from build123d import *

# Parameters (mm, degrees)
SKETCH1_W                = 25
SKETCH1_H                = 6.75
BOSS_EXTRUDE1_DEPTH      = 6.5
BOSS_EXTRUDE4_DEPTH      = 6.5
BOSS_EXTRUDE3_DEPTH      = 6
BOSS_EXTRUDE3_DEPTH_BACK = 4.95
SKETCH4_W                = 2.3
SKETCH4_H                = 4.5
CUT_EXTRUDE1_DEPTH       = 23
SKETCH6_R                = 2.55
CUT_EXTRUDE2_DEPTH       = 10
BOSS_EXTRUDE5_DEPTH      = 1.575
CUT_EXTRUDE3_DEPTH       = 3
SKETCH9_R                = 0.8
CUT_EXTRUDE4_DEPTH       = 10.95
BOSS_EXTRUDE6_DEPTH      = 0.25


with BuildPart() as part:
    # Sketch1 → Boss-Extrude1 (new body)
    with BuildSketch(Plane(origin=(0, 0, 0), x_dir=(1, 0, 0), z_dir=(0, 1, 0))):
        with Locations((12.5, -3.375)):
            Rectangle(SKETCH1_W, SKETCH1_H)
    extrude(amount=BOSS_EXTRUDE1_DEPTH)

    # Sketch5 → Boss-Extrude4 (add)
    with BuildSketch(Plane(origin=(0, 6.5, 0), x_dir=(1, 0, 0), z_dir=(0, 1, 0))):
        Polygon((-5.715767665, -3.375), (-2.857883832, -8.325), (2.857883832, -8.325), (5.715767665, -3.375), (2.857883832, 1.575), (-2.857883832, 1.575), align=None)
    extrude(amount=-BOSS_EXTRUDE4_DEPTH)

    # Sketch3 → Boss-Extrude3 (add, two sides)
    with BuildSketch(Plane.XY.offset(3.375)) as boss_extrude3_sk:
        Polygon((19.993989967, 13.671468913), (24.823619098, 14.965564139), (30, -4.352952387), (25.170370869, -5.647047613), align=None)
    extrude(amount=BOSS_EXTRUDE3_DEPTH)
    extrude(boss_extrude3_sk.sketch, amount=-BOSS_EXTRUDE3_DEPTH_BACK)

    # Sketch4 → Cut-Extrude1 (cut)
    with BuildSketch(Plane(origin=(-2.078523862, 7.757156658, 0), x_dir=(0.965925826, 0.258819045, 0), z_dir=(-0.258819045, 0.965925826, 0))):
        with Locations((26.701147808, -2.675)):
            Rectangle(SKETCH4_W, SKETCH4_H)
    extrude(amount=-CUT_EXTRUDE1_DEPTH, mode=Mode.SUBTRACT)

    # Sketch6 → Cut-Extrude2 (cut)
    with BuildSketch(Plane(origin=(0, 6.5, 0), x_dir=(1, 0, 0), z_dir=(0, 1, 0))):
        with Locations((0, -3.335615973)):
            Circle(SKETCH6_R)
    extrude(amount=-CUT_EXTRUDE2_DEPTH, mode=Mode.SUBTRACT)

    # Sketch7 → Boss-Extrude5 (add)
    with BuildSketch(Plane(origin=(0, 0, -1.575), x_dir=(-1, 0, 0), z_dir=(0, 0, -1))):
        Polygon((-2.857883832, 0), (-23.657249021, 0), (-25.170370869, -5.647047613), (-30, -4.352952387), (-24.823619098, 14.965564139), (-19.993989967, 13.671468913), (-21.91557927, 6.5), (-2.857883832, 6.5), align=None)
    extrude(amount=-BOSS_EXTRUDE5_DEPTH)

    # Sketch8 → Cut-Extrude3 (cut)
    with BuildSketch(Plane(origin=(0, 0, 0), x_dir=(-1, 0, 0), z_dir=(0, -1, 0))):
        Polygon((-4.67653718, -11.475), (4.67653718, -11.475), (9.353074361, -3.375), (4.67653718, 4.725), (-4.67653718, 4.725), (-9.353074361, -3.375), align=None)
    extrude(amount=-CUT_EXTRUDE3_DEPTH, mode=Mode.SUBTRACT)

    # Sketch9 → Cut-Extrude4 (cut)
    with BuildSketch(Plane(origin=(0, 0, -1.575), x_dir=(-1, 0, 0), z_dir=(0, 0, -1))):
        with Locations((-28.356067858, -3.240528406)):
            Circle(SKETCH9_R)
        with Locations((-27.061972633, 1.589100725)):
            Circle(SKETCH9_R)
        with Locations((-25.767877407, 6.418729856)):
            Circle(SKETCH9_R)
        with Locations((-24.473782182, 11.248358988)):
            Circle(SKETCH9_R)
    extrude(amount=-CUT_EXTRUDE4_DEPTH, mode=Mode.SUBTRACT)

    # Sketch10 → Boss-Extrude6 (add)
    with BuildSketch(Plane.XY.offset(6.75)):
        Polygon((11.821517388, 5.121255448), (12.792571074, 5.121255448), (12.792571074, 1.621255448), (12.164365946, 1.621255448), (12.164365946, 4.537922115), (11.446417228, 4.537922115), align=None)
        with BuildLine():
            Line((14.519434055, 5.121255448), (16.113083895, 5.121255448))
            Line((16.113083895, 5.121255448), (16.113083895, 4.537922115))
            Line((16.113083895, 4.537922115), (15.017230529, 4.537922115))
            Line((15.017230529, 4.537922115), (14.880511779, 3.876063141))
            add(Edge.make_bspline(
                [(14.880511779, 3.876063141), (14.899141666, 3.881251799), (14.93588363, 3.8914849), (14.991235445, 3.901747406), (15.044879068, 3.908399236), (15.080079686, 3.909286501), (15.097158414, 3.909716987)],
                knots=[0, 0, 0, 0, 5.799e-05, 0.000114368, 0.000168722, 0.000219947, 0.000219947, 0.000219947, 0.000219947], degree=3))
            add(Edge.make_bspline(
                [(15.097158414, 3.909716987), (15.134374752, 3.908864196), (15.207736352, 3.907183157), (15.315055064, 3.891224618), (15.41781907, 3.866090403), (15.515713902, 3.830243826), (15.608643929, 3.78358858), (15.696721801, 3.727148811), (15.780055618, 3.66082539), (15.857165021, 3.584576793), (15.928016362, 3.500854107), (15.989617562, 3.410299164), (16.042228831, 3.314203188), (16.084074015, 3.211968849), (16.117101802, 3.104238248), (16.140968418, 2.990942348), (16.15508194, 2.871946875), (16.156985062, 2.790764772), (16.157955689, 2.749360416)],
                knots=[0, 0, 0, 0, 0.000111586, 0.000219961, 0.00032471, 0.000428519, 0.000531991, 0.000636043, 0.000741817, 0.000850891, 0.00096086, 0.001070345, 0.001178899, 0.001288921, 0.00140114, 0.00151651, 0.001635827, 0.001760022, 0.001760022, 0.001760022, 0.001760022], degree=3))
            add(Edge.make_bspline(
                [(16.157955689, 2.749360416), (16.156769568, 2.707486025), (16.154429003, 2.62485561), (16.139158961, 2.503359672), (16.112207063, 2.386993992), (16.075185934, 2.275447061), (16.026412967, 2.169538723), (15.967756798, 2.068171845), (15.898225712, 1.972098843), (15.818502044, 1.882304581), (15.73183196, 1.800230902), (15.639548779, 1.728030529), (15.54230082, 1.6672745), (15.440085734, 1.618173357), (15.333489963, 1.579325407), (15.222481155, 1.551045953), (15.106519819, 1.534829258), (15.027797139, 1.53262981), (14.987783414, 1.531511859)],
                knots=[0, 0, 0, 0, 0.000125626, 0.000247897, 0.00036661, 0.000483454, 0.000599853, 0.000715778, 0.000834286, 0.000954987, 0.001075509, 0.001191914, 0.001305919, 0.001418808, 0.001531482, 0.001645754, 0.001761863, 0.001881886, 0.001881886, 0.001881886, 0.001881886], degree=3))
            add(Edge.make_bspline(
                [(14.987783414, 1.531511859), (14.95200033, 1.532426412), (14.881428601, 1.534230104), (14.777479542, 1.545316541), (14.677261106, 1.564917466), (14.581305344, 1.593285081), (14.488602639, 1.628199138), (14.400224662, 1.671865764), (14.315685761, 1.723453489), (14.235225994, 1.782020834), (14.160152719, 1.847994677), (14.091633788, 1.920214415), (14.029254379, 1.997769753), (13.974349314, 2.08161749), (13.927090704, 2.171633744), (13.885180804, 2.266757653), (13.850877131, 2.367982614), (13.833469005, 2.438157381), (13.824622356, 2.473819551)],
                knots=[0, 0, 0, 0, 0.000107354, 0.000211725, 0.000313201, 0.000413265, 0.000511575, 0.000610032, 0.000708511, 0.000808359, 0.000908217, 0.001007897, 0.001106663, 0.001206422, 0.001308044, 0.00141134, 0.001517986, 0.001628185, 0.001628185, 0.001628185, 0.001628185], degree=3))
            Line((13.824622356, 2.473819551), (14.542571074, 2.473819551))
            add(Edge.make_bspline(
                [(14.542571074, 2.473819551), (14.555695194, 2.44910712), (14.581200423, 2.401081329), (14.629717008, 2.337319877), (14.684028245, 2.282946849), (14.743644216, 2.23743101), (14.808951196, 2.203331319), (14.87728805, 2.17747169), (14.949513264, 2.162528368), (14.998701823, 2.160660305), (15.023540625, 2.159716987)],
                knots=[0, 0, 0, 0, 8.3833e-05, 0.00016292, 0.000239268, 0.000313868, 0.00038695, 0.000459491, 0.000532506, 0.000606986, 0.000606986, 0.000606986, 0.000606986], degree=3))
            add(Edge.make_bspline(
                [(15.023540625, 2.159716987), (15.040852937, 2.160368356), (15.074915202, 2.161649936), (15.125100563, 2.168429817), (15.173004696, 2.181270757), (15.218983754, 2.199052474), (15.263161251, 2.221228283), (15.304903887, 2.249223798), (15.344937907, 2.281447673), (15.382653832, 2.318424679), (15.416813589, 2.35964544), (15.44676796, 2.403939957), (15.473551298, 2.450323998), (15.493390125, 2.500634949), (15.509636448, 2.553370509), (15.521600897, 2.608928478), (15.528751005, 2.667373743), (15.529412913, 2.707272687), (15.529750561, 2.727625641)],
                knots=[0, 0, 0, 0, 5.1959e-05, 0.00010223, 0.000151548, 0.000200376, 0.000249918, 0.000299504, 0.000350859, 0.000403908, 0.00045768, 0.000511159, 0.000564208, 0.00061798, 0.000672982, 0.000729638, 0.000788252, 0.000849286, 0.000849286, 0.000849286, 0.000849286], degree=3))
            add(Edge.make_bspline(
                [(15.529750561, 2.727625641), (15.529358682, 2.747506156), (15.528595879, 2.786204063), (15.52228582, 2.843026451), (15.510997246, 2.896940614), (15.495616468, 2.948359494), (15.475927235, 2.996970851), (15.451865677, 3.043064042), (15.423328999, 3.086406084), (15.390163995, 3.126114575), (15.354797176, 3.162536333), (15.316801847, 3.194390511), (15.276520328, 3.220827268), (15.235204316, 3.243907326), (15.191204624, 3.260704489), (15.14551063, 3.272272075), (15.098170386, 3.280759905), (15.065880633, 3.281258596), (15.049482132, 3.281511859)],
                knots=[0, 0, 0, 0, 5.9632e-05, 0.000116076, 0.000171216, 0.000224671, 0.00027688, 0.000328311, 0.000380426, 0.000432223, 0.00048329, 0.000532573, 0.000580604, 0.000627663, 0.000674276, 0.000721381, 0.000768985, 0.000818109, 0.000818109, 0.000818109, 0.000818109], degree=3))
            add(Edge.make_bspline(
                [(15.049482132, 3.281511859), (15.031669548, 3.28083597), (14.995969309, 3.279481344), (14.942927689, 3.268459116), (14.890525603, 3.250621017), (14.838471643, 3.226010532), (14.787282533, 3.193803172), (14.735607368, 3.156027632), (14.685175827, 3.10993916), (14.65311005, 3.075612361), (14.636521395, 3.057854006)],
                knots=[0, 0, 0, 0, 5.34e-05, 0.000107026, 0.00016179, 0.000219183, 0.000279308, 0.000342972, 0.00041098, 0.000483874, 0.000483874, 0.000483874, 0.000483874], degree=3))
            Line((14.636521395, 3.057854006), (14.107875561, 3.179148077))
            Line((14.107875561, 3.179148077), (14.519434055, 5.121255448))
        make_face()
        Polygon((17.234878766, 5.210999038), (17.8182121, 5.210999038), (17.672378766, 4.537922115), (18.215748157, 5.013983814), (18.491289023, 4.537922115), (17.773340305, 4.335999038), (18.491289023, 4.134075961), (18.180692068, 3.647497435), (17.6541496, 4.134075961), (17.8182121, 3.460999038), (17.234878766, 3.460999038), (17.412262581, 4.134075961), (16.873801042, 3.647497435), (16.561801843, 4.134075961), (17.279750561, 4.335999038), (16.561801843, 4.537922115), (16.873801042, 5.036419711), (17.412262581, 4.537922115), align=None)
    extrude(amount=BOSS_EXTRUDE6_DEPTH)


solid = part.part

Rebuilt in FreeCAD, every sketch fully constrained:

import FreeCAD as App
import Part
import Sketcher

V = App.Vector
Q = App.Units.Quantity

doc = App.newDocument("Part")
params = doc.addObject("Spreadsheet::Sheet", "Params")
for row, (alias, value) in enumerate([
    ("sketch1_width", "25 mm"),
    ("sketch1_height", "6.75 mm"),
    ("pad1_length", "6.5 mm"),
    ("pad2_length", "6.5 mm"),
    ("sketch3_length", "5 mm"),
    ("sketch3_length2", "20 mm"),
    ("pad3_length", "6 mm"),
    ("pad3_length2", "4.95 mm"),
    ("sketch4_width", "2.3 mm"),
    ("sketch4_height", "4.5 mm"),
    ("pocket1_length", "23 mm"),
    ("sketch5_diameter", "5.1 mm"),
    ("pocket2_length", "10 mm"),
    ("sketch6_length", "5 mm"),
    ("sketch6_length2", "20 mm"),
    ("sketch6_height", "6.5 mm"),
    ("pad4_length", "1.575 mm"),
    ("pocket3_length", "3 mm"),
    ("sketch8_diameter", "1.6 mm"),
    ("pocket4_length", "10.95 mm"),
    ("sketch9_height", "3.5 mm"),
    ("pad5_length", "0.25 mm"),
], start=1):
    params.set(f"A{row}", alias)
    params.set(f"B{row}", "=" + value)
    params.setAlias(f"B{row}", alias)

body = doc.addObject("PartDesign::Body", "Body")

# Sketch on XZ plane
sketch1 = body.newObject("Sketcher::SketchObject", "Sketch")
sketch1.AttachmentSupport = (doc.getObject("XZ_Plane"), [""])
sketch1.MapMode = "FlatFace"
sketch1.addGeometry(Part.LineSegment(V(0, 0, 0), V(0, 7, 0)), False)
sketch1.addGeometry(Part.LineSegment(V(0, 7, 0), V(25, 7, 0)), False)
sketch1.addGeometry(Part.LineSegment(V(25, 7, 0), V(25, 0, 0)), False)
sketch1.addGeometry(Part.LineSegment(V(25, 0, 0), V(0, 0, 0)), False)
sketch1.addConstraint(Sketcher.Constraint("Coincident", 0, 2, 1, 1))
sketch1.addConstraint(Sketcher.Constraint("Coincident", 1, 2, 2, 1))
sketch1.addConstraint(Sketcher.Constraint("Coincident", 2, 2, 3, 1))
sketch1.addConstraint(Sketcher.Constraint("Coincident", 3, 2, 0, 1))
sketch1.addConstraint(Sketcher.Constraint("Vertical", 0))
sketch1.addConstraint(Sketcher.Constraint("Horizontal", 1))
sketch1.addConstraint(Sketcher.Constraint("Vertical", 2))
sketch1.addConstraint(Sketcher.Constraint("Horizontal", 3))
sketch1.addConstraint(Sketcher.Constraint("Coincident", 3, 2, -1, 1))
sketch1.addConstraint(Sketcher.Constraint("DistanceX", 1, 1, 1, 2, 25.0))
sketch1.addConstraint(Sketcher.Constraint("DistanceY", 0, 1, 0, 2, 6.75))
sketch1.setExpression("Constraints[9]", "Params.sketch1_width")
sketch1.setExpression("Constraints[10]", "Params.sketch1_height")
pad1 = body.newObject("PartDesign::Pad", "Pad")
pad1.Profile = sketch1
pad1.setExpression("Length", "Params.pad1_length")
pad1.Reversed = True

# Sketch on XZ plane
sketch2 = body.newObject("Sketcher::SketchObject", "Sketch001")
sketch2.AttachmentSupport = (doc.getObject("XZ_Plane"), [""])
sketch2.MapMode = "FlatFace"
sketch2.AttachmentOffset = App.Placement(V(0, 0, -6.5), App.Rotation())
sketch2.addGeometry(Part.LineSegment(V(-6, 3, 0), V(-3, 8, 0)), False)
sketch2.addGeometry(Part.LineSegment(V(-3, 8, 0), V(3, 8, 0)), False)
sketch2.addGeometry(Part.LineSegment(V(3, 8, 0), V(6, 3, 0)), False)
sketch2.addGeometry(Part.LineSegment(V(6, 3, 0), V(3, -2, 0)), False)
sketch2.addGeometry(Part.LineSegment(V(3, -2, 0), V(-3, -2, 0)), False)
sketch2.addGeometry(Part.LineSegment(V(-3, -2, 0), V(-6, 3, 0)), False)
sketch2.addConstraint(Sketcher.Constraint("Coincident", 0, 2, 1, 1))
sketch2.addConstraint(Sketcher.Constraint("Coincident", 1, 2, 2, 1))
sketch2.addConstraint(Sketcher.Constraint("Coincident", 2, 2, 3, 1))
sketch2.addConstraint(Sketcher.Constraint("Coincident", 3, 2, 4, 1))
sketch2.addConstraint(Sketcher.Constraint("Coincident", 4, 2, 5, 1))
sketch2.addConstraint(Sketcher.Constraint("Coincident", 5, 2, 0, 1))
sketch2.addConstraint(Sketcher.Constraint("Horizontal", 1))
sketch2.addConstraint(Sketcher.Constraint("Horizontal", 4))
sketch2.addConstraint(Sketcher.Constraint("Symmetric", 2, 2, 5, 2, -2))
sketch2.addConstraint(Sketcher.Constraint("Parallel", 0, 3))
sketch2.addConstraint(Sketcher.Constraint("Parallel", 2, 5))
sketch2.addConstraint(Sketcher.Constraint("Vertical", 1, 2, 3, 2))
sketch2.addConstraint(Sketcher.Constraint("Vertical", 0, 2, 4, 2))
sketch2.addConstraint(Sketcher.Constraint("Angle", 0, Q("60 deg")))
sketch2.addConstraint(Sketcher.Constraint("DistanceY", 3, 2, 1, 2, 9.9))
sketch2.addConstraint(Sketcher.Constraint("DistanceY", -1, 1, 0, 2, 8.325))
sketch2.addConstraint(Sketcher.Constraint("DistanceX", 1, 1, 1, 2, 5.715768))
pad2 = body.newObject("PartDesign::Pad", "Pad001")
pad2.Profile = sketch2
pad2.setExpression("Length", "Params.pad2_length")

# Sketch on XY plane
sketch3 = body.newObject("Sketcher::SketchObject", "Sketch002")
sketch3.AttachmentSupport = (doc.getObject("XY_Plane"), [""])
sketch3.MapMode = "FlatFace"
sketch3.AttachmentOffset = App.Placement(V(0, 0, 3.375), App.Rotation())
sketch3.addGeometry(Part.LineSegment(V(24.8, 15, 0), V(20, 13.7, 0)), False)
sketch3.addGeometry(Part.LineSegment(V(20, 13.7, 0), V(25.2, -5.6, 0)), False)
sketch3.addGeometry(Part.LineSegment(V(25.2, -5.6, 0), V(30, -4.4, 0)), False)
sketch3.addGeometry(Part.LineSegment(V(30, -4.4, 0), V(24.8, 15, 0)), False)
sketch3.addConstraint(Sketcher.Constraint("Coincident", 0, 2, 1, 1))
sketch3.addConstraint(Sketcher.Constraint("Coincident", 1, 2, 2, 1))
sketch3.addConstraint(Sketcher.Constraint("Coincident", 2, 2, 3, 1))
sketch3.addConstraint(Sketcher.Constraint("Coincident", 3, 2, 0, 1))
sketch3.addConstraint(Sketcher.Constraint("Perpendicular", 0, 1))
sketch3.addConstraint(Sketcher.Constraint("Perpendicular", 1, 2))
sketch3.addConstraint(Sketcher.Constraint("Perpendicular", 2, 3))
sketch3.addConstraint(Sketcher.Constraint("Angle", 0, Q("-165 deg")))
sketch3.addConstraint(Sketcher.Constraint("Distance", 0, 5.0))
sketch3.addConstraint(Sketcher.Constraint("Distance", 1, 20.0))
sketch3.addConstraint(Sketcher.Constraint("DistanceX", -1, 1, 2, 2, 30.0))
sketch3.addConstraint(Sketcher.Constraint("DistanceY", -1, 1, 0, 2, 13.671469))
sketch3.setExpression("Constraints[8]", "Params.sketch3_length")
sketch3.setExpression("Constraints[9]", "Params.sketch3_length2")
pad3 = body.newObject("PartDesign::Pad", "Pad002")
pad3.Profile = sketch3
pad3.Type = "TwoLengths"
pad3.setExpression("Length", "Params.pad3_length")
pad3.setExpression("Length2", "Params.pad3_length2")

# Sketch on an angled plane
sketch4 = body.newObject("Sketcher::SketchObject", "Sketch003")
sketch4.Placement = App.Placement(V(-2.078524, 7.757157, 0), App.Rotation(V(0.965925826, 0.258819045, 0), V(0, 0, -0.999999999), V(-0.258819045, 0.965925826, 0), "ZXY"))
sketch4.addGeometry(Part.LineSegment(V(25.6, -0.4, 0), V(25.6, -4.9, 0)), False)
sketch4.addGeometry(Part.LineSegment(V(25.6, -4.9, 0), V(27.9, -4.9, 0)), False)
sketch4.addGeometry(Part.LineSegment(V(27.9, -4.9, 0), V(27.9, -0.4, 0)), False)
sketch4.addGeometry(Part.LineSegment(V(27.9, -0.4, 0), V(25.6, -0.4, 0)), False)
sketch4.addConstraint(Sketcher.Constraint("Coincident", 0, 2, 1, 1))
sketch4.addConstraint(Sketcher.Constraint("Coincident", 1, 2, 2, 1))
sketch4.addConstraint(Sketcher.Constraint("Coincident", 2, 2, 3, 1))
sketch4.addConstraint(Sketcher.Constraint("Coincident", 3, 2, 0, 1))
sketch4.addConstraint(Sketcher.Constraint("Vertical", 0))
sketch4.addConstraint(Sketcher.Constraint("Horizontal", 1))
sketch4.addConstraint(Sketcher.Constraint("Vertical", 2))
sketch4.addConstraint(Sketcher.Constraint("Horizontal", 3))
sketch4.addConstraint(Sketcher.Constraint("DistanceX", 1, 1, 1, 2, 2.3))
sketch4.addConstraint(Sketcher.Constraint("DistanceY", 0, 2, 0, 1, 4.5))
sketch4.addConstraint(Sketcher.Constraint("DistanceY", 0, 2, -1, 1, 4.925))
sketch4.addConstraint(Sketcher.Constraint("DistanceX", -1, 1, 0, 2, 25.551148))
sketch4.setExpression("Constraints[8]", "Params.sketch4_width")
sketch4.setExpression("Constraints[9]", "Params.sketch4_height")
pocket1 = body.newObject("PartDesign::Pocket", "Pocket")
pocket1.Profile = sketch4
pocket1.setExpression("Length", "Params.pocket1_length")

# Sketch on XZ plane
sketch5 = body.newObject("Sketcher::SketchObject", "Sketch004")
sketch5.AttachmentSupport = (doc.getObject("XZ_Plane"), [""])
sketch5.MapMode = "FlatFace"
sketch5.AttachmentOffset = App.Placement(V(0, 0, -6.5), App.Rotation())
sketch5.addGeometry(Part.Circle(V(0, 3.3, 0), V(0, 0, 1), 2.5), False)
sketch5.addConstraint(Sketcher.Constraint("PointOnObject", 0, 3, -2))
sketch5.addConstraint(Sketcher.Constraint("Diameter", 0, 5.1))
sketch5.addConstraint(Sketcher.Constraint("DistanceY", -1, 1, 0, 3, 3.335616))
sketch5.setExpression("Constraints[1]", "Params.sketch5_diameter")
pocket2 = body.newObject("PartDesign::Pocket", "Pocket001")
pocket2.Profile = sketch5
pocket2.setExpression("Length", "Params.pocket2_length")
pocket2.Reversed = True

# Sketch on XY plane
sketch6 = body.newObject("Sketcher::SketchObject", "Sketch005")
sketch6.AttachmentSupport = (doc.getObject("XY_Plane"), [""])
sketch6.MapMode = "FlatFace"
sketch6.AttachmentOffset = App.Placement(V(0, 0, -1.575), App.Rotation())
sketch6.addGeometry(Part.LineSegment(V(23.7, 0, 0), V(2.9, 0, 0)), False)
sketch6.addGeometry(Part.LineSegment(V(2.9, 0, 0), V(2.9, 6.5, 0)), False)
sketch6.addGeometry(Part.LineSegment(V(2.9, 6.5, 0), V(21.9, 6.5, 0)), False)
sketch6.addGeometry(Part.LineSegment(V(21.9, 6.5, 0), V(20, 13.7, 0)), False)
sketch6.addGeometry(Part.LineSegment(V(20, 13.7, 0), V(24.8, 15, 0)), False)
sketch6.addGeometry(Part.LineSegment(V(24.8, 15, 0), V(30, -4.4, 0)), False)
sketch6.addGeometry(Part.LineSegment(V(30, -4.4, 0), V(25.2, -5.6, 0)), False)
sketch6.addGeometry(Part.LineSegment(V(25.2, -5.6, 0), V(23.7, 0, 0)), False)
sketch6.addConstraint(Sketcher.Constraint("Coincident", 0, 2, 1, 1))
sketch6.addConstraint(Sketcher.Constraint("Coincident", 1, 2, 2, 1))
sketch6.addConstraint(Sketcher.Constraint("Coincident", 2, 2, 3, 1))
sketch6.addConstraint(Sketcher.Constraint("Coincident", 3, 2, 4, 1))
sketch6.addConstraint(Sketcher.Constraint("Coincident", 4, 2, 5, 1))
sketch6.addConstraint(Sketcher.Constraint("Coincident", 5, 2, 6, 1))
sketch6.addConstraint(Sketcher.Constraint("Coincident", 6, 2, 7, 1))
sketch6.addConstraint(Sketcher.Constraint("Coincident", 7, 2, 0, 1))
sketch6.addConstraint(Sketcher.Constraint("Horizontal", 0))
sketch6.addConstraint(Sketcher.Constraint("Vertical", 1))
sketch6.addConstraint(Sketcher.Constraint("Horizontal", 2))
sketch6.addConstraint(Sketcher.Constraint("PointOnObject", 0, 2, -1))
sketch6.addConstraint(Sketcher.Constraint("Perpendicular", 3, 4))
sketch6.addConstraint(Sketcher.Constraint("Perpendicular", 4, 5))
sketch6.addConstraint(Sketcher.Constraint("Perpendicular", 5, 6))
sketch6.addConstraint(Sketcher.Constraint("Perpendicular", 6, 7))
sketch6.addConstraint(Sketcher.Constraint("Equal", 4, 6))
sketch6.addConstraint(Sketcher.Constraint("Angle", 3, Q("105 deg")))
sketch6.addConstraint(Sketcher.Constraint("Distance", 4, 5.0))
sketch6.addConstraint(Sketcher.Constraint("Distance", 5, 20.0))
sketch6.addConstraint(Sketcher.Constraint("DistanceY", 1, 1, 1, 2, 6.5))
sketch6.addConstraint(Sketcher.Constraint("DistanceX", -1, 1, 5, 2, 30.0))
sketch6.addConstraint(Sketcher.Constraint("Distance", 3, 7.424451))
sketch6.addConstraint(Sketcher.Constraint("DistanceX", 0, 2, 0, 1, 20.799365))
sketch6.setExpression("Constraints[18]", "Params.sketch6_length")
sketch6.setExpression("Constraints[19]", "Params.sketch6_length2")
sketch6.setExpression("Constraints[20]", "Params.sketch6_height")
pad4 = body.newObject("PartDesign::Pad", "Pad003")
pad4.Profile = sketch6
pad4.setExpression("Length", "Params.pad4_length")

# Sketch on XZ plane
sketch7 = body.newObject("Sketcher::SketchObject", "Sketch006")
sketch7.AttachmentSupport = (doc.getObject("XZ_Plane"), [""])
sketch7.MapMode = "FlatFace"
sketch7.addGeometry(Part.LineSegment(V(5, 11, 0), V(-5, 11, 0)), False)
sketch7.addGeometry(Part.LineSegment(V(-5, 11, 0), V(-9, 3, 0)), False)
sketch7.addGeometry(Part.LineSegment(V(-9, 3, 0), V(-5, -5, 0)), False)
sketch7.addGeometry(Part.LineSegment(V(-5, -5, 0), V(5, -5, 0)), False)
sketch7.addGeometry(Part.LineSegment(V(5, -5, 0), V(9, 3, 0)), False)
sketch7.addGeometry(Part.LineSegment(V(9, 3, 0), V(5, 11, 0)), False)
sketch7.addConstraint(Sketcher.Constraint("Coincident", 0, 2, 1, 1))
sketch7.addConstraint(Sketcher.Constraint("Coincident", 1, 2, 2, 1))
sketch7.addConstraint(Sketcher.Constraint("Coincident", 2, 2, 3, 1))
sketch7.addConstraint(Sketcher.Constraint("Coincident", 3, 2, 4, 1))
sketch7.addConstraint(Sketcher.Constraint("Coincident", 4, 2, 5, 1))
sketch7.addConstraint(Sketcher.Constraint("Coincident", 5, 2, 0, 1))
sketch7.addConstraint(Sketcher.Constraint("Horizontal", 0))
sketch7.addConstraint(Sketcher.Constraint("Horizontal", 3))
sketch7.addConstraint(Sketcher.Constraint("Symmetric", 1, 2, 4, 2, -2))
sketch7.addConstraint(Sketcher.Constraint("Parallel", 1, 4))
sketch7.addConstraint(Sketcher.Constraint("Parallel", 2, 5))
sketch7.addConstraint(Sketcher.Constraint("Vertical", 0, 2, 2, 2))
sketch7.addConstraint(Sketcher.Constraint("Vertical", 3, 2, 5, 2))
sketch7.addConstraint(Sketcher.Constraint("Angle", 1, Q("-120 deg")))
sketch7.addConstraint(Sketcher.Constraint("DistanceY", 1, 2, 0, 2, 8.1))
sketch7.addConstraint(Sketcher.Constraint("DistanceY", -1, 1, 0, 2, 11.475))
sketch7.addConstraint(Sketcher.Constraint("DistanceX", 0, 2, 0, 1, 9.353074))
pocket3 = body.newObject("PartDesign::Pocket", "Pocket002")
pocket3.Profile = sketch7
pocket3.setExpression("Length", "Params.pocket3_length")

# Sketch on XY plane
sketch8 = body.newObject("Sketcher::SketchObject", "Sketch007")
sketch8.AttachmentSupport = (doc.getObject("XY_Plane"), [""])
sketch8.MapMode = "FlatFace"
sketch8.AttachmentOffset = App.Placement(V(0, 0, -1.575), App.Rotation())
sketch8.addGeometry(Part.Circle(V(28.4, -3.2, 0), V(0, 0, 1), 0.8), False)
sketch8.addGeometry(Part.Circle(V(27.1, 1.6, 0), V(0, 0, 1), 0.8), False)
sketch8.addGeometry(Part.Circle(V(25.8, 6.4, 0), V(0, 0, 1), 0.8), False)
sketch8.addGeometry(Part.Circle(V(24.5, 11.2, 0), V(0, 0, 1), 0.8), False)
sketch8.addConstraint(Sketcher.Constraint("Equal", 0, 1))
sketch8.addConstraint(Sketcher.Constraint("Equal", 1, 2))
sketch8.addConstraint(Sketcher.Constraint("Equal", 2, 3))
sketch8.addConstraint(Sketcher.Constraint("Diameter", 0, 1.6))
sketch8.addConstraint(Sketcher.Constraint("DistanceY", -1, 1, 1, 3, 1.589101))
sketch8.addConstraint(Sketcher.Constraint("DistanceY", 0, 3, -1, 1, 3.240528))
sketch8.addConstraint(Sketcher.Constraint("DistanceY", -1, 1, 2, 3, 6.41873))
sketch8.addConstraint(Sketcher.Constraint("DistanceY", -1, 1, 3, 3, 11.248359))
sketch8.addConstraint(Sketcher.Constraint("DistanceX", 2, 3, 0, 3, 2.58819))
sketch8.addConstraint(Sketcher.Constraint("DistanceX", 3, 3, 1, 3, 2.58819))
sketch8.addConstraint(Sketcher.Constraint("DistanceX", -1, 1, 0, 3, 28.356068))
sketch8.addConstraint(Sketcher.Constraint("DistanceX", -1, 1, 1, 3, 27.061973))
sketch8.setExpression("Constraints[3]", "Params.sketch8_diameter")
pocket4 = body.newObject("PartDesign::Pocket", "Pocket003")
pocket4.Profile = sketch8
pocket4.setExpression("Length", "Params.pocket4_length")
pocket4.Reversed = True

# Sketch on XY plane
sketch9 = body.newObject("Sketcher::SketchObject", "Sketch008")
sketch9.AttachmentSupport = (doc.getObject("XY_Plane"), [""])
sketch9.MapMode = "FlatFace"
sketch9.AttachmentOffset = App.Placement(V(0, 0, 6.75), App.Rotation())
sketch9.addGeometry(Part.LineSegment(V(12.792571, 5.121255, 0), V(11.821517, 5.121255, 0)), False)
sketch9.addGeometry(Part.LineSegment(V(11.821517, 5.121255, 0), V(11.446417, 4.537922, 0)), False)
sketch9.addGeometry(Part.LineSegment(V(11.446417, 4.537922, 0), V(12.164366, 4.537922, 0)), False)
sketch9.addGeometry(Part.LineSegment(V(12.164366, 4.537922, 0), V(12.164366, 1.621255, 0)), False)
sketch9.addGeometry(Part.LineSegment(V(12.164366, 1.621255, 0), V(12.792571, 1.621255, 0)), False)
sketch9.addGeometry(Part.LineSegment(V(12.792571, 1.621255, 0), V(12.792571, 5.121255, 0)), False)
sketch9.addGeometry(Part.LineSegment(V(16.113084, 5.121255, 0), V(14.519434, 5.121255, 0)), False)
sketch9.addGeometry(Part.LineSegment(V(14.519434, 5.121255, 0), V(14.107876, 3.179148, 0)), False)
sketch9.addGeometry(Part.LineSegment(V(14.107876, 3.179148, 0), V(14.636521, 3.057854, 0)), False)
sketch9.addGeometry(Part.BSplineCurve([V(15.049482, 3.281512, 0), V(15.03167, 3.280836, 0), V(14.995969, 3.279481, 0), V(14.942928, 3.268459, 0), V(14.890526, 3.250621, 0), V(14.838472, 3.226011, 0), V(14.787283, 3.193803, 0), V(14.735607, 3.156028, 0), V(14.685176, 3.109939, 0), V(14.65311, 3.075612, 0), V(14.636521, 3.057854, 0)], [4, 1, 1, 1, 1, 1, 1, 1, 4], [0, 0.0000534, 0.000107026, 0.00016179, 0.000219183, 0.000279308, 0.000342972, 0.00041098, 0.000483874], False, 3, [1, 1, 1, 1, 1, 1, 1, 1, 1, 1, 1], False), False)
sketch9.addGeometry(Part.BSplineCurve([V(15.529751, 2.727626, 0), V(15.529359, 2.747506, 0), V(15.528596, 2.786204, 0), V(15.522286, 2.843026, 0), V(15.510997, 2.896941, 0), V(15.495616, 2.948359, 0), V(15.475927, 2.996971, 0), V(15.451866, 3.043064, 0), V(15.423329, 3.086406, 0), V(15.390164, 3.126115, 0), V(15.354797, 3.162536, 0), V(15.316802, 3.194391, 0), V(15.27652, 3.220827, 0), V(15.235204, 3.243907, 0), V(15.191205, 3.260704, 0), V(15.145511, 3.272272, 0), V(15.09817, 3.28076, 0), V(15.065881, 3.281259, 0), V(15.049482, 3.281512, 0)], [4, 1, 1, 1, 1, 1, 1, 1, 1, 1, 1, 1, 1, 1, 1, 1, 4], [0, 0.000059632, 0.000116076, 0.000171216, 0.000224671, 0.00027688, 0.000328311, 0.000380426, 0.000432223, 0.00048329, 0.000532573, 0.000580604, 0.000627663, 0.000674276, 0.000721381, 0.000768985, 0.000818109], False, 3, [1, 1, 1, 1, 1, 1, 1, 1, 1, 1, 1, 1, 1, 1, 1, 1, 1, 1, 1], False), False)
sketch9.addGeometry(Part.BSplineCurve([V(15.023541, 2.159717, 0), V(15.040853, 2.160368, 0), V(15.074915, 2.16165, 0), V(15.125101, 2.16843, 0), V(15.173005, 2.181271, 0), V(15.218984, 2.199052, 0), V(15.263161, 2.221228, 0), V(15.304904, 2.249224, 0), V(15.344938, 2.281448, 0), V(15.382654, 2.318425, 0), V(15.416814, 2.359645, 0), V(15.446768, 2.40394, 0), V(15.473551, 2.450324, 0), V(15.49339, 2.500635, 0), V(15.509636, 2.553371, 0), V(15.521601, 2.608928, 0), V(15.528751, 2.667374, 0), V(15.529413, 2.707273, 0), V(15.529751, 2.727626, 0)], [4, 1, 1, 1, 1, 1, 1, 1, 1, 1, 1, 1, 1, 1, 1, 1, 4], [0, 0.000051959, 0.00010223, 0.000151548, 0.000200376, 0.000249918, 0.000299504, 0.000350859, 0.000403908, 0.00045768, 0.000511159, 0.000564208, 0.00061798, 0.000672982, 0.000729638, 0.000788252, 0.000849286], False, 3, [1, 1, 1, 1, 1, 1, 1, 1, 1, 1, 1, 1, 1, 1, 1, 1, 1, 1, 1], False), False)
sketch9.addGeometry(Part.BSplineCurve([V(14.542571, 2.47382, 0), V(14.555695, 2.449107, 0), V(14.5812, 2.401081, 0), V(14.629717, 2.33732, 0), V(14.684028, 2.282947, 0), V(14.743644, 2.237431, 0), V(14.808951, 2.203331, 0), V(14.877288, 2.177472, 0), V(14.949513, 2.162528, 0), V(14.998702, 2.16066, 0), V(15.023541, 2.159717, 0)], [4, 1, 1, 1, 1, 1, 1, 1, 4], [0, 0.000083833, 0.00016292, 0.000239268, 0.000313868, 0.00038695, 0.000459491, 0.000532506, 0.000606986], False, 3, [1, 1, 1, 1, 1, 1, 1, 1, 1, 1, 1], False), False)
sketch9.addGeometry(Part.LineSegment(V(14.542571, 2.47382, 0), V(13.824622, 2.47382, 0)), False)
sketch9.addGeometry(Part.BSplineCurve([V(14.987783, 1.531512, 0), V(14.952, 1.532426, 0), V(14.881429, 1.53423, 0), V(14.77748, 1.545317, 0), V(14.677261, 1.564917, 0), V(14.581305, 1.593285, 0), V(14.488603, 1.628199, 0), V(14.400225, 1.671866, 0), V(14.315686, 1.723453, 0), V(14.235226, 1.782021, 0), V(14.160153, 1.847995, 0), V(14.091634, 1.920214, 0), V(14.029254, 1.99777, 0), V(13.974349, 2.081617, 0), V(13.927091, 2.171634, 0), V(13.885181, 2.266758, 0), V(13.850877, 2.367983, 0), V(13.833469, 2.438157, 0), V(13.824622, 2.47382, 0)], [4, 1, 1, 1, 1, 1, 1, 1, 1, 1, 1, 1, 1, 1, 1, 1, 4], [0, 0.000107354, 0.000211725, 0.000313201, 0.000413265, 0.000511575, 0.000610032, 0.000708511, 0.000808359, 0.000908217, 0.001007897, 0.001106663, 0.001206422, 0.001308044, 0.00141134, 0.001517986, 0.001628185], False, 3, [1, 1, 1, 1, 1, 1, 1, 1, 1, 1, 1, 1, 1, 1, 1, 1, 1, 1, 1], False), False)
sketch9.addGeometry(Part.BSplineCurve([V(16.157956, 2.74936, 0), V(16.15677, 2.707486, 0), V(16.154429, 2.624856, 0), V(16.139159, 2.50336, 0), V(16.112207, 2.386994, 0), V(16.075186, 2.275447, 0), V(16.026413, 2.169539, 0), V(15.967757, 2.068172, 0), V(15.898226, 1.972099, 0), V(15.818502, 1.882305, 0), V(15.731832, 1.800231, 0), V(15.639549, 1.728031, 0), V(15.542301, 1.667274, 0), V(15.440086, 1.618173, 0), V(15.33349, 1.579325, 0), V(15.222481, 1.551046, 0), V(15.10652, 1.534829, 0), V(15.027797, 1.53263, 0), V(14.987783, 1.531512, 0)], [4, 1, 1, 1, 1, 1, 1, 1, 1, 1, 1, 1, 1, 1, 1, 1, 4], [0, 0.000125626, 0.000247897, 0.00036661, 0.000483454, 0.000599853, 0.000715778, 0.000834286, 0.000954987, 0.001075509, 0.001191914, 0.001305919, 0.001418808, 0.001531482, 0.001645754, 0.001761863, 0.001881886], False, 3, [1, 1, 1, 1, 1, 1, 1, 1, 1, 1, 1, 1, 1, 1, 1, 1, 1, 1, 1], False), False)
sketch9.addGeometry(Part.BSplineCurve([V(15.097158, 3.909717, 0), V(15.134375, 3.908864, 0), V(15.207736, 3.907183, 0), V(15.315055, 3.891225, 0), V(15.417819, 3.86609, 0), V(15.515714, 3.830244, 0), V(15.608644, 3.783589, 0), V(15.696722, 3.727149, 0), V(15.780056, 3.660825, 0), V(15.857165, 3.584577, 0), V(15.928016, 3.500854, 0), V(15.989618, 3.410299, 0), V(16.042229, 3.314203, 0), V(16.084074, 3.211969, 0), V(16.117102, 3.104238, 0), V(16.140968, 2.990942, 0), V(16.155082, 2.871947, 0), V(16.156985, 2.790765, 0), V(16.157956, 2.74936, 0)], [4, 1, 1, 1, 1, 1, 1, 1, 1, 1, 1, 1, 1, 1, 1, 1, 4], [0, 0.000111586, 0.000219961, 0.00032471, 0.000428519, 0.000531991, 0.000636043, 0.000741817, 0.000850891, 0.00096086, 0.001070345, 0.001178899, 0.001288921, 0.00140114, 0.00151651, 0.001635827, 0.001760022], False, 3, [1, 1, 1, 1, 1, 1, 1, 1, 1, 1, 1, 1, 1, 1, 1, 1, 1, 1, 1], False), False)
sketch9.addGeometry(Part.BSplineCurve([V(14.880512, 3.876063, 0), V(14.899142, 3.881252, 0), V(14.935884, 3.891485, 0), V(14.991235, 3.901747, 0), V(15.044879, 3.908399, 0), V(15.08008, 3.909287, 0), V(15.097158, 3.909717, 0)], [4, 1, 1, 1, 4], [0, 0.00005799, 0.000114368, 0.000168722, 0.000219947], False, 3, [1, 1, 1, 1, 1, 1, 1], False), False)
sketch9.addGeometry(Part.LineSegment(V(14.880512, 3.876063, 0), V(15.017231, 4.537922, 0)), False)
sketch9.addGeometry(Part.LineSegment(V(15.017231, 4.537922, 0), V(16.113084, 4.537922, 0)), False)
sketch9.addGeometry(Part.LineSegment(V(16.113084, 4.537922, 0), V(16.113084, 5.121255, 0)), False)
sketch9.addGeometry(Part.LineSegment(V(17.818212, 5.210999, 0), V(17.234879, 5.210999, 0)), False)
sketch9.addGeometry(Part.LineSegment(V(17.234879, 5.210999, 0), V(17.412263, 4.537922, 0)), False)
sketch9.addGeometry(Part.LineSegment(V(17.412263, 4.537922, 0), V(16.873801, 5.03642, 0)), False)
sketch9.addGeometry(Part.LineSegment(V(16.873801, 5.03642, 0), V(16.561802, 4.537922, 0)), False)
sketch9.addGeometry(Part.LineSegment(V(16.561802, 4.537922, 0), V(17.279751, 4.335999, 0)), False)
sketch9.addGeometry(Part.LineSegment(V(17.279751, 4.335999, 0), V(16.561802, 4.134076, 0)), False)
sketch9.addGeometry(Part.LineSegment(V(16.561802, 4.134076, 0), V(16.873801, 3.647497, 0)), False)
sketch9.addGeometry(Part.LineSegment(V(16.873801, 3.647497, 0), V(17.412263, 4.134076, 0)), False)
sketch9.addGeometry(Part.LineSegment(V(17.412263, 4.134076, 0), V(17.234879, 3.460999, 0)), False)
sketch9.addGeometry(Part.LineSegment(V(17.234879, 3.460999, 0), V(17.818212, 3.460999, 0)), False)
sketch9.addGeometry(Part.LineSegment(V(17.818212, 3.460999, 0), V(17.65415, 4.134076, 0)), False)
sketch9.addGeometry(Part.LineSegment(V(17.65415, 4.134076, 0), V(18.180692, 3.647497, 0)), False)
sketch9.addGeometry(Part.LineSegment(V(18.180692, 3.647497, 0), V(18.491289, 4.134076, 0)), False)
sketch9.addGeometry(Part.LineSegment(V(18.491289, 4.134076, 0), V(17.77334, 4.335999, 0)), False)
sketch9.addGeometry(Part.LineSegment(V(17.77334, 4.335999, 0), V(18.491289, 4.537922, 0)), False)
sketch9.addGeometry(Part.LineSegment(V(18.491289, 4.537922, 0), V(18.215748, 5.013984, 0)), False)
sketch9.addGeometry(Part.LineSegment(V(18.215748, 5.013984, 0), V(17.672379, 4.537922, 0)), False)
sketch9.addGeometry(Part.LineSegment(V(17.672379, 4.537922, 0), V(17.818212, 5.210999, 0)), False)
sketch9.addConstraint(Sketcher.Constraint("Block", 9))
sketch9.addConstraint(Sketcher.Constraint("Block", 10))
sketch9.addConstraint(Sketcher.Constraint("Block", 11))
sketch9.addConstraint(Sketcher.Constraint("Block", 12))
sketch9.addConstraint(Sketcher.Constraint("Block", 14))
sketch9.addConstraint(Sketcher.Constraint("Block", 15))
sketch9.addConstraint(Sketcher.Constraint("Block", 16))
sketch9.addConstraint(Sketcher.Constraint("Block", 17))
sketch9.addConstraint(Sketcher.Constraint("Coincident", 0, 2, 1, 1))
sketch9.addConstraint(Sketcher.Constraint("Coincident", 1, 2, 2, 1))
sketch9.addConstraint(Sketcher.Constraint("Coincident", 2, 2, 3, 1))
sketch9.addConstraint(Sketcher.Constraint("Coincident", 3, 2, 4, 1))
sketch9.addConstraint(Sketcher.Constraint("Coincident", 4, 2, 5, 1))
sketch9.addConstraint(Sketcher.Constraint("Coincident", 5, 2, 0, 1))
sketch9.addConstraint(Sketcher.Constraint("Coincident", 6, 2, 7, 1))
sketch9.addConstraint(Sketcher.Constraint("Coincident", 7, 2, 8, 1))
sketch9.addConstraint(Sketcher.Constraint("Coincident", 8, 2, 9, 2))
sketch9.addConstraint(Sketcher.Constraint("Coincident", 12, 1, 13, 1))
sketch9.addConstraint(Sketcher.Constraint("Coincident", 13, 2, 14, 2))
sketch9.addConstraint(Sketcher.Constraint("Coincident", 17, 1, 18, 1))
sketch9.addConstraint(Sketcher.Constraint("Coincident", 18, 2, 19, 1))
sketch9.addConstraint(Sketcher.Constraint("Coincident", 19, 2, 20, 1))
sketch9.addConstraint(Sketcher.Constraint("Coincident", 20, 2, 6, 1))
sketch9.addConstraint(Sketcher.Constraint("Coincident", 21, 2, 22, 1))
sketch9.addConstraint(Sketcher.Constraint("Coincident", 22, 2, 23, 1))
sketch9.addConstraint(Sketcher.Constraint("Coincident", 23, 2, 24, 1))
sketch9.addConstraint(Sketcher.Constraint("Coincident", 24, 2, 25, 1))
sketch9.addConstraint(Sketcher.Constraint("Coincident", 25, 2, 26, 1))
sketch9.addConstraint(Sketcher.Constraint("Coincident", 26, 2, 27, 1))
sketch9.addConstraint(Sketcher.Constraint("Coincident", 27, 2, 28, 1))
sketch9.addConstraint(Sketcher.Constraint("Coincident", 28, 2, 29, 1))
sketch9.addConstraint(Sketcher.Constraint("Coincident", 29, 2, 30, 1))
sketch9.addConstraint(Sketcher.Constraint("Coincident", 30, 2, 31, 1))
sketch9.addConstraint(Sketcher.Constraint("Coincident", 31, 2, 32, 1))
sketch9.addConstraint(Sketcher.Constraint("Coincident", 32, 2, 33, 1))
sketch9.addConstraint(Sketcher.Constraint("Coincident", 33, 2, 34, 1))
sketch9.addConstraint(Sketcher.Constraint("Coincident", 34, 2, 35, 1))
sketch9.addConstraint(Sketcher.Constraint("Coincident", 35, 2, 36, 1))
sketch9.addConstraint(Sketcher.Constraint("Coincident", 36, 2, 37, 1))
sketch9.addConstraint(Sketcher.Constraint("Coincident", 37, 2, 38, 1))
sketch9.addConstraint(Sketcher.Constraint("Coincident", 38, 2, 21, 1))
sketch9.addConstraint(Sketcher.Constraint("Horizontal", 0))
sketch9.addConstraint(Sketcher.Constraint("Horizontal", 2))
sketch9.addConstraint(Sketcher.Constraint("Vertical", 3))
sketch9.addConstraint(Sketcher.Constraint("Horizontal", 4))
sketch9.addConstraint(Sketcher.Constraint("Vertical", 5))
sketch9.addConstraint(Sketcher.Constraint("Horizontal", 6))
sketch9.addConstraint(Sketcher.Constraint("Horizontal", 19))
sketch9.addConstraint(Sketcher.Constraint("Vertical", 20))
sketch9.addConstraint(Sketcher.Constraint("Horizontal", 21))
sketch9.addConstraint(Sketcher.Constraint("Horizontal", 30))
sketch9.addConstraint(Sketcher.Constraint("DistanceY", 5, 1, 5, 2, 3.5))
sketch9.addConstraint(Sketcher.Constraint("DistanceY", 4, 2, 6, 2, 3.5))
sketch9.addConstraint(Sketcher.Constraint("DistanceY", -1, 1, 21, 2, 5.210999))
sketch9.addConstraint(Sketcher.Constraint("DistanceY", -1, 1, 25, 2, 4.335999))
sketch9.addConstraint(Sketcher.Constraint("DistanceY", -1, 1, 29, 2, 3.460999))
sketch9.addConstraint(Sketcher.Constraint("DistanceY", -1, 1, 34, 2, 4.335999))
sketch9.addConstraint(Sketcher.Constraint("DistanceX", 24, 2, 23, 2, 0.311999))
sketch9.addConstraint(Sketcher.Constraint("DistanceX", 26, 2, 23, 2, 0.311999))
sketch9.addConstraint(Sketcher.Constraint("DistanceX", 26, 2, 27, 2, 0.311999))
sketch9.addConstraint(Sketcher.Constraint("DistanceX", 2, 1, 2, 2, 0.717949))
sketch9.addConstraint(Sketcher.Constraint("DistanceX", 6, 2, 6, 1, 1.59365))
sketch9.addConstraint(Sketcher.Constraint("DistanceX", -1, 1, 23, 2, 16.873801))
sketch9.addConstraint(Sketcher.Constraint("DistanceX", 1, 2, 0, 2, 0.3751))
sketch9.addConstraint(Sketcher.Constraint("DistanceY", 8, 2, 6, 2, 2.063401))
sketch9.addConstraint(Sketcher.Constraint("DistanceY", 27, 2, 25, 2, 0.688502))
sketch9.addConstraint(Sketcher.Constraint("DistanceX", 25, 2, 31, 2, 0.374399))
sketch9.addConstraint(Sketcher.Constraint("DistanceY", 30, 2, 32, 2, 0.186498))
sketch9.addConstraint(Sketcher.Constraint("Distance", 22, 0.696059))
sketch9.addConstraint(Sketcher.Constraint("Distance", 28, 0.725741))
sketch9.addConstraint(Sketcher.Constraint("Distance", 29, 0.696059))
sketch9.addConstraint(Sketcher.Constraint("Distance", 32, 0.716942))
sketch9.addConstraint(Sketcher.Constraint("Distance", 33, 0.57726))
sketch9.addConstraint(Sketcher.Constraint("DistanceX", 0, 2, 0, 1, 0.971054))
sketch9.addConstraint(Sketcher.Constraint("DistanceX", 19, 1, 19, 2, 1.095853))
sketch9.addConstraint(Sketcher.Constraint("DistanceX", 21, 2, 21, 1, 0.583333))
sketch9.addConstraint(Sketcher.Constraint("DistanceX", 30, 1, 30, 2, 0.583333))
sketch9.addConstraint(Sketcher.Constraint("DistanceY", 3, 2, 3, 1, 2.916667))
sketch9.addConstraint(Sketcher.Constraint("DistanceY", 20, 1, 20, 2, 0.583333))
sketch9.addConstraint(Sketcher.Constraint("DistanceX", -1, 1, 4, 2, 12.792571))
sketch9.addConstraint(Sketcher.Constraint("DistanceY", -1, 1, 7, 2, 3.179148))
sketch9.addConstraint(Sketcher.Constraint("DistanceX", -1, 1, 18, 2, 15.017231))
sketch9.addConstraint(Sketcher.Constraint("DistanceX", -1, 1, 21, 2, 17.234879))
sketch9.addConstraint(Sketcher.Constraint("DistanceY", -1, 1, 23, 2, 5.03642))
sketch9.addConstraint(Sketcher.Constraint("DistanceX", -1, 1, 25, 2, 17.279751))
sketch9.addConstraint(Sketcher.Constraint("DistanceX", -1, 1, 29, 2, 17.234879))
sketch9.addConstraint(Sketcher.Constraint("DistanceX", -1, 1, 33, 2, 18.491289))
sketch9.addConstraint(Sketcher.Constraint("DistanceX", -1, 1, 34, 2, 17.77334))
sketch9.addConstraint(Sketcher.Constraint("DistanceX", -1, 1, 35, 2, 18.491289))
sketch9.addConstraint(Sketcher.Constraint("DistanceX", -1, 1, 36, 2, 18.215748))
sketch9.addConstraint(Sketcher.Constraint("DistanceX", -1, 1, 37, 2, 17.672379))
sketch9.addConstraint(Sketcher.Constraint("DistanceX", 7, 2, 6, 2, 0.411558))
sketch9.addConstraint(Sketcher.Constraint("DistanceX", 19, 2, 22, 2, 1.299179))
sketch9.addConstraint(Sketcher.Constraint("DistanceY", 27, 2, 26, 2, 0.486579))
sketch9.addConstraint(Sketcher.Constraint("DistanceX", 30, 2, 32, 2, 0.36248))
sketch9.addConstraint(Sketcher.Constraint("DistanceY", 35, 2, 36, 2, 0.476062))
sketch9.addConstraint(Sketcher.Constraint("DistanceY", 22, 2, 36, 2, 0.476062))
sketch9.addConstraint(Sketcher.Constraint("Distance", 24, 0.588084))
sketch9.addConstraint(Sketcher.Constraint("Distance", 37, 0.722416))
sketch9.setExpression("Constraints[51]", "Params.sketch9_height")
pad5 = body.newObject("PartDesign::Pad", "Pad004")
pad5.Profile = sketch9
pad5.setExpression("Length", "Params.pad5_length")

doc.recompute()
